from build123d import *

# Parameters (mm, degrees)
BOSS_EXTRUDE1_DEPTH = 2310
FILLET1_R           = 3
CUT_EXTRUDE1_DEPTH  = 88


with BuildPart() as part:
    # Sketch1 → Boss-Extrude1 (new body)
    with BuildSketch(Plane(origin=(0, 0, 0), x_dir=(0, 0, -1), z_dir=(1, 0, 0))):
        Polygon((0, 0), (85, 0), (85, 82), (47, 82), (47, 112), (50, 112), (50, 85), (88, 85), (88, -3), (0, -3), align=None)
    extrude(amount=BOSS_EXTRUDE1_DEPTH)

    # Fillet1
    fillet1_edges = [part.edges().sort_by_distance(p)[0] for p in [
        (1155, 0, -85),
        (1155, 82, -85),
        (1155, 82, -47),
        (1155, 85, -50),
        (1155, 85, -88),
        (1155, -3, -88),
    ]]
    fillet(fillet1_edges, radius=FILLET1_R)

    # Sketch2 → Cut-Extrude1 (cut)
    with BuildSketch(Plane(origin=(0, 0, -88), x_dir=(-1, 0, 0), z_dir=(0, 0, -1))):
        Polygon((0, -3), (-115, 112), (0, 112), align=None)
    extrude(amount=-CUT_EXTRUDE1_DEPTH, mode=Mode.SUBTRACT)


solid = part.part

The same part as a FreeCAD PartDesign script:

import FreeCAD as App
import Part
import Sketcher
from FreeCAD import Vector


def edges_at(feature, points):
    """Names of the edges that pass closest to the given points."""
    edges = feature.Shape.Edges
    near = lambda p: min(range(len(edges)), key=lambda i: edges[i].distToShape(Part.Vertex(*p))[0])
    return sorted({f"Edge{near(p) + 1}" for p in points})

doc = App.newDocument("Part")
body = doc.addObject("PartDesign::Body", "Body")

# Sketch on YZ plane
sketch1 = doc.addObject("Sketcher::SketchObject", "Sketch")
body.addObject(sketch1)
sketch1.AttachmentSupport = (doc.YZ_Plane, [""])
sketch1.MapMode = "FlatFace"
sketch1.addGeometry(Part.LineSegment(Vector(0, -85, 0), Vector(0, 0, 0)), False)
sketch1.addGeometry(Part.LineSegment(Vector(0, 0, 0), Vector(-3, 0, 0)), False)
sketch1.addGeometry(Part.LineSegment(Vector(-3, 0, 0), Vector(-3, -88, 0)), False)
sketch1.addGeometry(Part.LineSegment(Vector(-3, -88, 0), Vector(85, -88, 0)), False)
sketch1.addGeometry(Part.LineSegment(Vector(85, -88, 0), Vector(85, -50, 0)), False)
sketch1.addGeometry(Part.LineSegment(Vector(85, -50, 0), Vector(112, -50, 0)), False)
sketch1.addGeometry(Part.LineSegment(Vector(112, -50, 0), Vector(112, -47, 0)), False)
sketch1.addGeometry(Part.LineSegment(Vector(112, -47, 0), Vector(82, -47, 0)), False)
sketch1.addGeometry(Part.LineSegment(Vector(82, -47, 0), Vector(82, -85, 0)), False)
sketch1.addGeometry(Part.LineSegment(Vector(82, -85, 0), Vector(0, -85, 0)), False)
sketch1.addConstraint(Sketcher.Constraint("Coincident", 0, 2, 1, 1))
sketch1.addConstraint(Sketcher.Constraint("Coincident", 1, 2, 2, 1))
sketch1.addConstraint(Sketcher.Constraint("Coincident", 2, 2, 3, 1))
sketch1.addConstraint(Sketcher.Constraint("Coincident", 3, 2, 4, 1))
sketch1.addConstraint(Sketcher.Constraint("Coincident", 4, 2, 5, 1))
sketch1.addConstraint(Sketcher.Constraint("Coincident", 5, 2, 6, 1))
sketch1.addConstraint(Sketcher.Constraint("Coincident", 6, 2, 7, 1))
sketch1.addConstraint(Sketcher.Constraint("Coincident", 7, 2, 8, 1))
sketch1.addConstraint(Sketcher.Constraint("Coincident", 8, 2, 9, 1))
sketch1.addConstraint(Sketcher.Constraint("Coincident", 9, 2, 0, 1))
sketch1.addConstraint(Sketcher.Constraint("Vertical", 0))
sketch1.addConstraint(Sketcher.Constraint("Horizontal", 1))
sketch1.addConstraint(Sketcher.Constraint("Vertical", 2))
sketch1.addConstraint(Sketcher.Constraint("Horizontal", 3))
sketch1.addConstraint(Sketcher.Constraint("Vertical", 4))
sketch1.addConstraint(Sketcher.Constraint("Horizontal", 5))
sketch1.addConstraint(Sketcher.Constraint("Vertical", 6))
sketch1.addConstraint(Sketcher.Constraint("Horizontal", 7))
sketch1.addConstraint(Sketcher.Constraint("Vertical", 8))
sketch1.addConstraint(Sketcher.Constraint("Horizontal", 9))
sketch1.addConstraint(Sketcher.Constraint("Coincident", 0, 2, -1, 1))
sketch1.addConstraint(Sketcher.Constraint("Equal", 3, 2))
sketch1.addConstraint(Sketcher.Constraint("Equal", 1, 6))
sketch1.addConstraint(Sketcher.Constraint("Equal", 4, 8))
sketch1.addConstraint(Sketcher.Constraint("DistanceX", 1, 2, 1, 1, 3.0))
sketch1.addConstraint(Sketcher.Constraint("DistanceX", 3, 1, 3, 2, 88.0))
sketch1.addConstraint(Sketcher.Constraint("DistanceX", 5, 1, 5, 2, 27.0))
sketch1.addConstraint(Sketcher.Constraint("DistanceX", 7, 2, 7, 1, 30.0))
sketch1.addConstraint(Sketcher.Constraint("DistanceY", 4, 1, 4, 2, 38.0))
pad1 = doc.addObject("PartDesign::Pad", "Pad")
body.addObject(pad1)
pad1.Profile = sketch1
pad1.Length = 2310
doc.recompute()

fillet = doc.addObject("PartDesign::Fillet", "Fillet")
body.addObject(fillet)
fillet.Base = (pad1, edges_at(pad1, [
    (1155, 0, -85),
    (1155, 82, -85),
    (1155, 82, -47),
    (1155, 85, -50),
    (1155, 85, -88),
    (1155, -3, -88),
]))
fillet.Radius = 3

# Sketch on XY plane
sketch2 = doc.addObject("Sketcher::SketchObject", "Sketch001")
body.addObject(sketch2)
sketch2.AttachmentSupport = (doc.XY_Plane, [""])
sketch2.MapMode = "FlatFace"
sketch2.AttachmentOffset = App.Placement(Vector(0, 0, -88), App.Rotation())
sketch2.addGeometry(Part.LineSegment(Vector(115, 112, 0), Vector(0, -3, 0)), False)
sketch2.addGeometry(Part.LineSegment(Vector(0, -3, 0), Vector(0, 112, 0)), False)
sketch2.addGeometry(Part.LineSegment(Vector(0, 112, 0), Vector(115, 112, 0)), False)
sketch2.addConstraint(Sketcher.Constraint("Coincident", 0, 2, 1, 1))
sketch2.addConstraint(Sketcher.Constraint("Coincident", 1, 2, 2, 1))
sketch2.addConstraint(Sketcher.Constraint("Coincident", 2, 2, 0, 1))
sketch2.addConstraint(Sketcher.Constraint("Vertical", 1))
sketch2.addConstraint(Sketcher.Constraint("Horizontal", 2))
sketch2.addConstraint(Sketcher.Constraint("PointOnObject", 0, 2, -2))
sketch2.addConstraint(Sketcher.Constraint("Equal", 2, 1))
sketch2.addConstraint(Sketcher.Constraint("DistanceX", 2, 1, 2, 2, 115.0))
sketch2.addConstraint(Sketcher.Constraint("DistanceY", 0, 2, -1, 1, 3.0))
pocket1 = doc.addObject("PartDesign::Pocket", "Pocket")
body.addObject(pocket1)
pocket1.Profile = sketch2
pocket1.Length = 88
pocket1.Reversed = True

doc.recompute()
